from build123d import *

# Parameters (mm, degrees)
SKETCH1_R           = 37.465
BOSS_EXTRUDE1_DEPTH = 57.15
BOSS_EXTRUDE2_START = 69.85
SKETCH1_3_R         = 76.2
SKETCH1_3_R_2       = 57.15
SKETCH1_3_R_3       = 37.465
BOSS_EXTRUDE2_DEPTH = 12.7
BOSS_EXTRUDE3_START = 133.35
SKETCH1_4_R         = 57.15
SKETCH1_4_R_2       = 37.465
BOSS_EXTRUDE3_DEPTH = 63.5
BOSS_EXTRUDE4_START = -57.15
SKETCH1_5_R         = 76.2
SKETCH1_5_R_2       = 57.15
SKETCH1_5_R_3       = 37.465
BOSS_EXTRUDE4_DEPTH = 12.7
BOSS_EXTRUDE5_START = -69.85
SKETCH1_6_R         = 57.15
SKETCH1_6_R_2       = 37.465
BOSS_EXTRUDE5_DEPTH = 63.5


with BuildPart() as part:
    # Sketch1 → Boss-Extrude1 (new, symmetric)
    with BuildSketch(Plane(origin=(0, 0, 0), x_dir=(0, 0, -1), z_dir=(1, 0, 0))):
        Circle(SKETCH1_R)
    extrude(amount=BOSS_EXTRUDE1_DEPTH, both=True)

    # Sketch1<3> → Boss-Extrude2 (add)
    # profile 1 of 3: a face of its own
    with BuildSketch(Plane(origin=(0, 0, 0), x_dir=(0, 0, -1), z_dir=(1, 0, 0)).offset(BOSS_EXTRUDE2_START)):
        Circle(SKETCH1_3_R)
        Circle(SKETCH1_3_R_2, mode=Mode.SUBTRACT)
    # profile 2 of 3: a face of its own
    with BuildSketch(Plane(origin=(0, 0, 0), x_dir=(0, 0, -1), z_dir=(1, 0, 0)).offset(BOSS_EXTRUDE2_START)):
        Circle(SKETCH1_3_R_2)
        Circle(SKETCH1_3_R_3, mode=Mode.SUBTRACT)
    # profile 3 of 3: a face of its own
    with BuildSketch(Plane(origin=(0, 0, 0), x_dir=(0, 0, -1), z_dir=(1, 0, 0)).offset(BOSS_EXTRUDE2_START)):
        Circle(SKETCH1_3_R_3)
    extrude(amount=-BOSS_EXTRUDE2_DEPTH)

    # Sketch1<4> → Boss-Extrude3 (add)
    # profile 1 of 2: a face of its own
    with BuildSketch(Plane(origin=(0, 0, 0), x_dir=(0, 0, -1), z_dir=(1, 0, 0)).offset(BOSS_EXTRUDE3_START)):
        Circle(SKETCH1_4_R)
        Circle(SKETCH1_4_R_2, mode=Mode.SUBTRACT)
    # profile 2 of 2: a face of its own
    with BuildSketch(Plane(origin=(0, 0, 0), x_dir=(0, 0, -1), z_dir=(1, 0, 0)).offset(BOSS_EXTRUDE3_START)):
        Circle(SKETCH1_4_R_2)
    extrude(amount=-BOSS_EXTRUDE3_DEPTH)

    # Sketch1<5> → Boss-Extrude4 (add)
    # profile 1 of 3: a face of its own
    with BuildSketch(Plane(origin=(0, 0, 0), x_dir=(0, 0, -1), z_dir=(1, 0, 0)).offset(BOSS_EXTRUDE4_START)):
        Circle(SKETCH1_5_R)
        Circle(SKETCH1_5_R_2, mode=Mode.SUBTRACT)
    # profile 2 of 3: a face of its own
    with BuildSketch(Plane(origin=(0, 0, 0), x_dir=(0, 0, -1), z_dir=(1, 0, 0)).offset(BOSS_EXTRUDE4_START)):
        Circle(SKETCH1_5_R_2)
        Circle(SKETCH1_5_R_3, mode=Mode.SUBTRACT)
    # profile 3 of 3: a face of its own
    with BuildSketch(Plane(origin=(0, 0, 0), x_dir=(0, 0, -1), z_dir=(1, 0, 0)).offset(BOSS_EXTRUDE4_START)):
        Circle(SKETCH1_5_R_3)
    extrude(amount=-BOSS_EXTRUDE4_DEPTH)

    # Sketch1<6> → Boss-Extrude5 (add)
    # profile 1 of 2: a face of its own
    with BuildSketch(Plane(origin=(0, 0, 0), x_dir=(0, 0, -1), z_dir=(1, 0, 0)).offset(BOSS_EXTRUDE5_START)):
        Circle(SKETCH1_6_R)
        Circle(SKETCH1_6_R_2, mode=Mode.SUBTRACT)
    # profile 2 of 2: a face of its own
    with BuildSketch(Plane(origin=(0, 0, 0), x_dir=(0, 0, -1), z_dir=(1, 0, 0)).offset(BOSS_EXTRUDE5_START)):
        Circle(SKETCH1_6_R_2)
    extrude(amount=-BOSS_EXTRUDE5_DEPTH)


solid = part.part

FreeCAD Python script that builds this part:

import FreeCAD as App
import Part
import Sketcher

V = App.Vector
Q = App.Units.Quantity

doc = App.newDocument("Part")
body = doc.addObject("PartDesign::Body", "Body")

# Sketch on YZ plane
sketch1 = body.newObject("Sketcher::SketchObject", "Sketch")
sketch1.AttachmentSupport = (doc.getObject("YZ_Plane"), [""])
sketch1.MapMode = "FlatFace"
sketch1.addGeometry(Part.Circle(V(0, 0, 0), V(0, 0, 1), 37.465), False)
sketch1.addConstraint([
    Sketcher.Constraint("Coincident", 0, 3, -1, 1),
    Sketcher.Constraint("Diameter", 0, Q("2.95 in")),
])
pad1 = body.newObject("PartDesign::Pad", "Pad")
pad1.Profile = sketch1
pad1.Length = Q("4.5 in")
pad1.Midplane = True

# Sketch on YZ plane
sketch2 = body.newObject("Sketcher::SketchObject", "Sketch001")
sketch2.AttachmentSupport = (doc.getObject("YZ_Plane"), [""])
sketch2.MapMode = "FlatFace"
sketch2.AttachmentOffset = App.Placement(V(0, 0, 2.75 * 25.4), App.Rotation())
sketch2.addGeometry(Part.Circle(V(0, 0, 0), V(0, 0, 1), 76.2), False)
sketch2.addConstraint([
    Sketcher.Constraint("Coincident", 0, 3, -1, 1),
    Sketcher.Constraint("Diameter", 0, Q("6 in")),
])
pad2 = body.newObject("PartDesign::Pad", "Pad001")
pad2.Profile = sketch2
pad2.Length = Q("0.5 in")
pad2.Reversed = True

# Sketch on YZ plane
sketch3 = body.newObject("Sketcher::SketchObject", "Sketch002")
sketch3.AttachmentSupport = (doc.getObject("YZ_Plane"), [""])
sketch3.MapMode = "FlatFace"
sketch3.AttachmentOffset = App.Placement(V(0, 0, 5.25 * 25.4), App.Rotation())
sketch3.addGeometry(Part.Circle(V(0, 0, 0), V(0, 0, 1), 57.15), False)
sketch3.addConstraint([
    Sketcher.Constraint("Coincident", 0, 3, -1, 1),
    Sketcher.Constraint("Diameter", 0, Q("4.5 in")),
])
pad3 = body.newObject("PartDesign::Pad", "Pad002")
pad3.Profile = sketch3
pad3.Length = Q("2.5 in")
pad3.Reversed = True

# Sketch on YZ plane
sketch4 = body.newObject("Sketcher::SketchObject", "Sketch003")
sketch4.AttachmentSupport = (doc.getObject("YZ_Plane"), [""])
sketch4.MapMode = "FlatFace"
sketch4.AttachmentOffset = App.Placement(V(0, 0, -2.25 * 25.4), App.Rotation())
sketch4.addGeometry(Part.Circle(V(0, 0, 0), V(0, 0, 1), 76.2), False)
sketch4.addConstraint([
    Sketcher.Constraint("Coincident", 0, 3, -1, 1),
    Sketcher.Constraint("Diameter", 0, Q("6 in")),
])
pad4 = body.newObject("PartDesign::Pad", "Pad003")
pad4.Profile = sketch4
pad4.Length = Q("0.5 in")
pad4.Reversed = True

# Sketch on YZ plane
sketch5 = body.newObject("Sketcher::SketchObject", "Sketch004")
sketch5.AttachmentSupport = (doc.getObject("YZ_Plane"), [""])
sketch5.MapMode = "FlatFace"
sketch5.AttachmentOffset = App.Placement(V(0, 0, -2.75 * 25.4), App.Rotation())
sketch5.addGeometry(Part.Circle(V(0, 0, 0), V(0, 0, 1), 57.15), False)
sketch5.addConstraint([
    Sketcher.Constraint("Coincident", 0, 3, -1, 1),
    Sketcher.Constraint("Diameter", 0, Q("4.5 in")),
])
pad5 = body.newObject("PartDesign::Pad", "Pad004")
pad5.Profile = sketch5
pad5.Length = Q("2.5 in")
pad5.Reversed = True

doc.recompute()
